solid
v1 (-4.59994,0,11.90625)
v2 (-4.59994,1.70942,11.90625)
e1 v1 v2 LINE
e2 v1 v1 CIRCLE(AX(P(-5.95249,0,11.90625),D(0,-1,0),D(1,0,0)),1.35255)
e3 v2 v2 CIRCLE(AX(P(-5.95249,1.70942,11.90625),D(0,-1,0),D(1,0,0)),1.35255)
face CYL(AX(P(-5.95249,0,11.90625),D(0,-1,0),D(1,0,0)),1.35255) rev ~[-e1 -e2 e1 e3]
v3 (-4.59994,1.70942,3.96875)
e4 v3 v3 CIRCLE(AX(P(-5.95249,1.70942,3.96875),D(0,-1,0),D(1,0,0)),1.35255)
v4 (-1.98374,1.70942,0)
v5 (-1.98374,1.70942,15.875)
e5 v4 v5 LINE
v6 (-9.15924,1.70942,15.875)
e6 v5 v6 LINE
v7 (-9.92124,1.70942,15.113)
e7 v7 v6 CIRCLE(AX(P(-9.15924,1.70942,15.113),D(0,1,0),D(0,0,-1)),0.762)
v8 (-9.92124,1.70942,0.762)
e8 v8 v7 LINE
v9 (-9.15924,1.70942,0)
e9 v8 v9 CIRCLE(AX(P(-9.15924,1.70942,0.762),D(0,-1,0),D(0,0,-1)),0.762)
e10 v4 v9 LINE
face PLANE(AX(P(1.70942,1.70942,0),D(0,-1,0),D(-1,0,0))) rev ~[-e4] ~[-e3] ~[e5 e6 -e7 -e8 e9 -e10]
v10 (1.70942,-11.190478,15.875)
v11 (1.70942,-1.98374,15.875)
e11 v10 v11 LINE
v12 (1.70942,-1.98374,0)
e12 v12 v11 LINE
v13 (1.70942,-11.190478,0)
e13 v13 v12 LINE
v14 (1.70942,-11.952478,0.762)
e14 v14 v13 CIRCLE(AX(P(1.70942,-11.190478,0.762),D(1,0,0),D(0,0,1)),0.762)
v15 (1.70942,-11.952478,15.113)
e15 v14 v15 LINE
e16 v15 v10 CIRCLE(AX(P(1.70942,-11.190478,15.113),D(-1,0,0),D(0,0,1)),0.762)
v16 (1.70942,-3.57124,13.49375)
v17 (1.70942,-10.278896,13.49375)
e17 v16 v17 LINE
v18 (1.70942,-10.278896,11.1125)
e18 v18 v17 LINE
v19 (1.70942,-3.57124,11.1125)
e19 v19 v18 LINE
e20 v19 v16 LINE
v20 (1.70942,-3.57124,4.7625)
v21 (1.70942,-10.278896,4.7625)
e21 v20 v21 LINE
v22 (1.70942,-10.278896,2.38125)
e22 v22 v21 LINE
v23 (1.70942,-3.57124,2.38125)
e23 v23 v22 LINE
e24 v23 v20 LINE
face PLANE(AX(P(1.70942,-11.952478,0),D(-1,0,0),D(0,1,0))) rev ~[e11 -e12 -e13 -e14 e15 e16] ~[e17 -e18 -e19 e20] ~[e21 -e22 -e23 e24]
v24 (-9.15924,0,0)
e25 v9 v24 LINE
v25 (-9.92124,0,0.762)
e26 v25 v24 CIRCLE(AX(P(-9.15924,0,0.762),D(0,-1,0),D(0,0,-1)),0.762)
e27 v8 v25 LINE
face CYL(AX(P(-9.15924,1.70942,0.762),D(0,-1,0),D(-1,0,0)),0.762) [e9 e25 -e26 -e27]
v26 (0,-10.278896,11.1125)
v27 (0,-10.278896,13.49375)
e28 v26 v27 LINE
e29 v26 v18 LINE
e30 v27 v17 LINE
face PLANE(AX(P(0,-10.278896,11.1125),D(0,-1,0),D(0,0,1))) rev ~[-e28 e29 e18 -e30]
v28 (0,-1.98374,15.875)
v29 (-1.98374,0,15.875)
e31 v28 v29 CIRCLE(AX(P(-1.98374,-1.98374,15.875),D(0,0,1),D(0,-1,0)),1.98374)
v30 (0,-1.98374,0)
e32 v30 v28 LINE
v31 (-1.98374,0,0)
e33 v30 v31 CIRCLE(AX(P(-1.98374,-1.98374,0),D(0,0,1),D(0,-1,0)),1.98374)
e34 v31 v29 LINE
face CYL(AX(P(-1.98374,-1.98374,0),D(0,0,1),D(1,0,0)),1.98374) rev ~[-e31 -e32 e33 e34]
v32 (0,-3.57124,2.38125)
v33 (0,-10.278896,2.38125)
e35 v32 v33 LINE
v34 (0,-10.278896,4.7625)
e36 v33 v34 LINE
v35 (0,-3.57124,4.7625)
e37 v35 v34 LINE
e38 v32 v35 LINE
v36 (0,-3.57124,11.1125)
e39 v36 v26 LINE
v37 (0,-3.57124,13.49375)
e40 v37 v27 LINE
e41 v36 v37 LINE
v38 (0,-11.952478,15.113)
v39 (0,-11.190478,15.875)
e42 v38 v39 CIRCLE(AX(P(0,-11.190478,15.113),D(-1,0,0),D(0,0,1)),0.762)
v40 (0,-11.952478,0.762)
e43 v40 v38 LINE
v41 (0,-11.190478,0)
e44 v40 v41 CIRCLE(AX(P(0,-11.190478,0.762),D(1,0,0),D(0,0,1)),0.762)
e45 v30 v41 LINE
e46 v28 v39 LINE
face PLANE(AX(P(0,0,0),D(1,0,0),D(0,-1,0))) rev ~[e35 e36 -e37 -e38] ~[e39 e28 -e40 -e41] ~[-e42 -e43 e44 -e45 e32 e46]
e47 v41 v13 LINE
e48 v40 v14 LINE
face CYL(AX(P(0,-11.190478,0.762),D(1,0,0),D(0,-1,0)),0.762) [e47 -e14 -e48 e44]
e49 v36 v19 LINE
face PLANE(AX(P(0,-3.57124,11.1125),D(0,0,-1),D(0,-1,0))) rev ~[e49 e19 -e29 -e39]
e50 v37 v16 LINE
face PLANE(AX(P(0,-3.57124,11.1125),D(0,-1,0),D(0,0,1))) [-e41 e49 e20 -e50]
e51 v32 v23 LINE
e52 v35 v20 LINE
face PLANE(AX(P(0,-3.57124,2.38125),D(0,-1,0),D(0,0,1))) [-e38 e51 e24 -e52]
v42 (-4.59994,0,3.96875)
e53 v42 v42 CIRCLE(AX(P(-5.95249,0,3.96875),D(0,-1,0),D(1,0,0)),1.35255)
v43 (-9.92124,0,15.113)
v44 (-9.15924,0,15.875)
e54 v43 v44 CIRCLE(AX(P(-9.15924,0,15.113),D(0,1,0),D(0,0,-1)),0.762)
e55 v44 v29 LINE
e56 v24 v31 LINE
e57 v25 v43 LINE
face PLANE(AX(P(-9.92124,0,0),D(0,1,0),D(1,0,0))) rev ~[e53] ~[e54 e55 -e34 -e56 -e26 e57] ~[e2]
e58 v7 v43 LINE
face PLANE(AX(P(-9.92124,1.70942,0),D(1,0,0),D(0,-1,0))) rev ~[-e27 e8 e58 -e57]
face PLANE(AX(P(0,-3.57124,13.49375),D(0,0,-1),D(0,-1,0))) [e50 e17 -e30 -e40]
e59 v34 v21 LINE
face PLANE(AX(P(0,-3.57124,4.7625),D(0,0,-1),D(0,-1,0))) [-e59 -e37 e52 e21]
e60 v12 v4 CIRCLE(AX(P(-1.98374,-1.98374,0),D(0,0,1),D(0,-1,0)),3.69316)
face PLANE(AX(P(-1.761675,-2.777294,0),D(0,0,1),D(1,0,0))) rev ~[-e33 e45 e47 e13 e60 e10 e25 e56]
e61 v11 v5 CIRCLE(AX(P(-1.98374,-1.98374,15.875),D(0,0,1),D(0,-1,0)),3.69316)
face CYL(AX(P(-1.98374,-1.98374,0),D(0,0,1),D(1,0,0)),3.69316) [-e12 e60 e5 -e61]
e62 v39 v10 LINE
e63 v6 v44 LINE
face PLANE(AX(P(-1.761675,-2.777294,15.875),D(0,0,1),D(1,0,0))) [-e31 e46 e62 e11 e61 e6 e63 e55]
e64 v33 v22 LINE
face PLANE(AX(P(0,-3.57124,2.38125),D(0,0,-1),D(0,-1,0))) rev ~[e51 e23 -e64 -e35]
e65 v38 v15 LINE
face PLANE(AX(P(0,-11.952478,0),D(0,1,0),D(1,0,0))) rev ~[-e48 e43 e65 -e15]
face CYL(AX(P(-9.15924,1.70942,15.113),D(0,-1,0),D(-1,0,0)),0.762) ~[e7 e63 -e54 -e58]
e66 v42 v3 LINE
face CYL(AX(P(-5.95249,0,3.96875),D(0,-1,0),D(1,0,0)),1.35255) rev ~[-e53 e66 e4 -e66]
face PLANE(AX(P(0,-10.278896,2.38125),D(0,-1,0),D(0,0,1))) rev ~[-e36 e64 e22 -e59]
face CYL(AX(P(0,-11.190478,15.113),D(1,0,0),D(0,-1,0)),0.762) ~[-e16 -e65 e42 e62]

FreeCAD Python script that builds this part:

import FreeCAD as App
import Part
import Sketcher
from FreeCAD import Vector
Q = App.Units.Quantity


def edges_at(feature, points):
    """Names of the edges that pass closest to the given points."""
    edges = feature.Shape.Edges
    near = lambda p: min(range(len(edges)), key=lambda i: edges[i].distToShape(Part.Vertex(*p))[0])
    return sorted({f"Edge{near(p) + 1}" for p in points})


def add_polygon(sketch, points):
    """Adds a closed chain of lines whose ends are joined by coincident constraints."""
    first, n = sketch.GeometryCount, len(points)
    for a, b in zip(points, points[1:] + points[:1]):
        sketch.addGeometry(Part.LineSegment(App.Vector(*a, 0), App.Vector(*b, 0)), False)
    for i in range(n):
        sketch.addConstraint(Sketcher.Constraint("Coincident", first + i, 2, first + (i + 1) % n, 1))

doc = App.newDocument("Part")
body = doc.addObject("PartDesign::Body", "Body")

sketch1 = doc.addObject("Sketcher::SketchObject", "Sketch")
body.addObject(sketch1)
sketch1.AttachmentSupport = (doc.XY_Plane, [""])
sketch1.MapMode = "FlatFace"
add_polygon(sketch1, [(0, 0), (0, -12), (1.7, -12), (1.7, 1.7), (-9.9, 1.7), (-9.9, 0)])
sketch1.addConstraint([
    Sketcher.Constraint("Vertical", 0),
    Sketcher.Constraint("Horizontal", 1),
    Sketcher.Constraint("Vertical", 2),
    Sketcher.Constraint("Horizontal", 3),
    Sketcher.Constraint("Vertical", 4),
    Sketcher.Constraint("Horizontal", 5),
    Sketcher.Constraint("Coincident", 5, 2, -1, 1),
    Sketcher.Constraint("Equal", 1, 4),
    Sketcher.Constraint("DistanceX", 1, 1, 1, 2, Q("0.0673 in")),
    Sketcher.Constraint("DistanceX", 3, 2, 3, 1, Q("0.4579 in")),
    Sketcher.Constraint("DistanceY", 0, 2, 0, 1, Q("11.952478 mm")),
])
pad1 = doc.addObject("PartDesign::Pad", "Pad")
body.addObject(pad1)
pad1.Profile = sketch1
pad1.Length = Q("0.625 in")
doc.recompute()

fillet = doc.addObject("PartDesign::Fillet", "Fillet")
body.addObject(fillet)
fillet.Base = (pad1, edges_at(pad1, [
    (-9.921, 0.855, 15.875),
    (-9.921, 0.855, 0),
    (0.855, -11.952, 0),
    (0.855, -11.952, 15.875),
]))
fillet.Radius = Q("0.03 in")
doc.recompute()

fillet2 = doc.addObject("PartDesign::Fillet", "Fillet001")
body.addObject(fillet2)
fillet2.Base = (fillet, edges_at(fillet, [(0, 0, 7.938)]))
fillet2.Radius = Q("0.0781 in")
doc.recompute()

fillet3 = doc.addObject("PartDesign::Fillet", "Fillet002")
body.addObject(fillet3)
fillet3.Base = (fillet2, edges_at(fillet2, [(1.709, 1.709, 7.938)]))
fillet3.Radius = Q("0.1454 in")

sketch2 = doc.addObject("Sketcher::SketchObject", "Sketch001")
body.addObject(sketch2)
sketch2.AttachmentSupport = (doc.YZ_Plane, [""])
sketch2.MapMode = "FlatFace"
add_polygon(sketch2, [(-3.6, 13.5), (-3.6, 11.1), (-10.3, 11.1), (-10.3, 13.5)])
add_polygon(sketch2, [(-3.6, 4.8), (-3.6, 2.4), (-10.3, 2.4), (-10.3, 4.8)])
sketch2.addConstraint([
    Sketcher.Constraint("Vertical", 0),
    Sketcher.Constraint("Horizontal", 1),
    Sketcher.Constraint("Vertical", 2),
    Sketcher.Constraint("Horizontal", 3),
    Sketcher.Constraint("Vertical", 4),
    Sketcher.Constraint("Horizontal", 5),
    Sketcher.Constraint("Vertical", 6),
    Sketcher.Constraint("Horizontal", 7),
    Sketcher.Constraint("Vertical", 3, 2, 4, 2),
    Sketcher.Constraint("Vertical", 2, 2, 5, 2),
    Sketcher.Constraint("Equal", 2, 4),
    Sketcher.Constraint("DistanceY", 0, 2, 0, 1, Q("0.09375 in")),
    Sketcher.Constraint("DistanceY", 6, 2, 1, 2, Q("0.25 in")),
    Sketcher.Constraint("DistanceY", -1, 1, 0, 2, Q("0.4375 in")),
    Sketcher.Constraint("DistanceX", 0, 2, -1, 1, Q("0.1406 in")),
    Sketcher.Constraint("DistanceX", 1, 2, 1, 1, Q("6.707656 mm")),
])
pocket1 = doc.addObject("PartDesign::Pocket", "Pocket")
body.addObject(pocket1)
pocket1.Profile = sketch2
pocket1.Type = "ThroughAll"
pocket1.Reversed = True

sketch3 = doc.addObject("Sketcher::SketchObject", "Sketch002")
body.addObject(sketch3)
sketch3.AttachmentSupport = (doc.XZ_Plane, [""])
sketch3.MapMode = "FlatFace"
sketch3.addGeometry([
    Part.Circle(Vector(-6, 11.9, 0), Vector(0, 0, 1), 1.4),
    Part.Circle(Vector(-6, 4, 0), Vector(0, 0, 1), 1.4),
], False)
sketch3.addConstraint([
    Sketcher.Constraint("Equal", 0, 1),
    Sketcher.Constraint("Vertical", 0, 3, 1, 3),
    Sketcher.Constraint("Diameter", 0, Q("0.1065 in")),
    Sketcher.Constraint("DistanceY", -1, 1, 0, 3, Q("0.46875 in")),
    Sketcher.Constraint("DistanceY", -1, 1, 1, 3, Q("0.15625 in")),
    Sketcher.Constraint("DistanceX", 0, 3, -1, 1, Q("5.95249 mm")),
])
pocket2 = doc.addObject("PartDesign::Pocket", "Pocket001")
body.addObject(pocket2)
pocket2.Profile = sketch3
pocket2.Type = "ThroughAll"

doc.recompute()
